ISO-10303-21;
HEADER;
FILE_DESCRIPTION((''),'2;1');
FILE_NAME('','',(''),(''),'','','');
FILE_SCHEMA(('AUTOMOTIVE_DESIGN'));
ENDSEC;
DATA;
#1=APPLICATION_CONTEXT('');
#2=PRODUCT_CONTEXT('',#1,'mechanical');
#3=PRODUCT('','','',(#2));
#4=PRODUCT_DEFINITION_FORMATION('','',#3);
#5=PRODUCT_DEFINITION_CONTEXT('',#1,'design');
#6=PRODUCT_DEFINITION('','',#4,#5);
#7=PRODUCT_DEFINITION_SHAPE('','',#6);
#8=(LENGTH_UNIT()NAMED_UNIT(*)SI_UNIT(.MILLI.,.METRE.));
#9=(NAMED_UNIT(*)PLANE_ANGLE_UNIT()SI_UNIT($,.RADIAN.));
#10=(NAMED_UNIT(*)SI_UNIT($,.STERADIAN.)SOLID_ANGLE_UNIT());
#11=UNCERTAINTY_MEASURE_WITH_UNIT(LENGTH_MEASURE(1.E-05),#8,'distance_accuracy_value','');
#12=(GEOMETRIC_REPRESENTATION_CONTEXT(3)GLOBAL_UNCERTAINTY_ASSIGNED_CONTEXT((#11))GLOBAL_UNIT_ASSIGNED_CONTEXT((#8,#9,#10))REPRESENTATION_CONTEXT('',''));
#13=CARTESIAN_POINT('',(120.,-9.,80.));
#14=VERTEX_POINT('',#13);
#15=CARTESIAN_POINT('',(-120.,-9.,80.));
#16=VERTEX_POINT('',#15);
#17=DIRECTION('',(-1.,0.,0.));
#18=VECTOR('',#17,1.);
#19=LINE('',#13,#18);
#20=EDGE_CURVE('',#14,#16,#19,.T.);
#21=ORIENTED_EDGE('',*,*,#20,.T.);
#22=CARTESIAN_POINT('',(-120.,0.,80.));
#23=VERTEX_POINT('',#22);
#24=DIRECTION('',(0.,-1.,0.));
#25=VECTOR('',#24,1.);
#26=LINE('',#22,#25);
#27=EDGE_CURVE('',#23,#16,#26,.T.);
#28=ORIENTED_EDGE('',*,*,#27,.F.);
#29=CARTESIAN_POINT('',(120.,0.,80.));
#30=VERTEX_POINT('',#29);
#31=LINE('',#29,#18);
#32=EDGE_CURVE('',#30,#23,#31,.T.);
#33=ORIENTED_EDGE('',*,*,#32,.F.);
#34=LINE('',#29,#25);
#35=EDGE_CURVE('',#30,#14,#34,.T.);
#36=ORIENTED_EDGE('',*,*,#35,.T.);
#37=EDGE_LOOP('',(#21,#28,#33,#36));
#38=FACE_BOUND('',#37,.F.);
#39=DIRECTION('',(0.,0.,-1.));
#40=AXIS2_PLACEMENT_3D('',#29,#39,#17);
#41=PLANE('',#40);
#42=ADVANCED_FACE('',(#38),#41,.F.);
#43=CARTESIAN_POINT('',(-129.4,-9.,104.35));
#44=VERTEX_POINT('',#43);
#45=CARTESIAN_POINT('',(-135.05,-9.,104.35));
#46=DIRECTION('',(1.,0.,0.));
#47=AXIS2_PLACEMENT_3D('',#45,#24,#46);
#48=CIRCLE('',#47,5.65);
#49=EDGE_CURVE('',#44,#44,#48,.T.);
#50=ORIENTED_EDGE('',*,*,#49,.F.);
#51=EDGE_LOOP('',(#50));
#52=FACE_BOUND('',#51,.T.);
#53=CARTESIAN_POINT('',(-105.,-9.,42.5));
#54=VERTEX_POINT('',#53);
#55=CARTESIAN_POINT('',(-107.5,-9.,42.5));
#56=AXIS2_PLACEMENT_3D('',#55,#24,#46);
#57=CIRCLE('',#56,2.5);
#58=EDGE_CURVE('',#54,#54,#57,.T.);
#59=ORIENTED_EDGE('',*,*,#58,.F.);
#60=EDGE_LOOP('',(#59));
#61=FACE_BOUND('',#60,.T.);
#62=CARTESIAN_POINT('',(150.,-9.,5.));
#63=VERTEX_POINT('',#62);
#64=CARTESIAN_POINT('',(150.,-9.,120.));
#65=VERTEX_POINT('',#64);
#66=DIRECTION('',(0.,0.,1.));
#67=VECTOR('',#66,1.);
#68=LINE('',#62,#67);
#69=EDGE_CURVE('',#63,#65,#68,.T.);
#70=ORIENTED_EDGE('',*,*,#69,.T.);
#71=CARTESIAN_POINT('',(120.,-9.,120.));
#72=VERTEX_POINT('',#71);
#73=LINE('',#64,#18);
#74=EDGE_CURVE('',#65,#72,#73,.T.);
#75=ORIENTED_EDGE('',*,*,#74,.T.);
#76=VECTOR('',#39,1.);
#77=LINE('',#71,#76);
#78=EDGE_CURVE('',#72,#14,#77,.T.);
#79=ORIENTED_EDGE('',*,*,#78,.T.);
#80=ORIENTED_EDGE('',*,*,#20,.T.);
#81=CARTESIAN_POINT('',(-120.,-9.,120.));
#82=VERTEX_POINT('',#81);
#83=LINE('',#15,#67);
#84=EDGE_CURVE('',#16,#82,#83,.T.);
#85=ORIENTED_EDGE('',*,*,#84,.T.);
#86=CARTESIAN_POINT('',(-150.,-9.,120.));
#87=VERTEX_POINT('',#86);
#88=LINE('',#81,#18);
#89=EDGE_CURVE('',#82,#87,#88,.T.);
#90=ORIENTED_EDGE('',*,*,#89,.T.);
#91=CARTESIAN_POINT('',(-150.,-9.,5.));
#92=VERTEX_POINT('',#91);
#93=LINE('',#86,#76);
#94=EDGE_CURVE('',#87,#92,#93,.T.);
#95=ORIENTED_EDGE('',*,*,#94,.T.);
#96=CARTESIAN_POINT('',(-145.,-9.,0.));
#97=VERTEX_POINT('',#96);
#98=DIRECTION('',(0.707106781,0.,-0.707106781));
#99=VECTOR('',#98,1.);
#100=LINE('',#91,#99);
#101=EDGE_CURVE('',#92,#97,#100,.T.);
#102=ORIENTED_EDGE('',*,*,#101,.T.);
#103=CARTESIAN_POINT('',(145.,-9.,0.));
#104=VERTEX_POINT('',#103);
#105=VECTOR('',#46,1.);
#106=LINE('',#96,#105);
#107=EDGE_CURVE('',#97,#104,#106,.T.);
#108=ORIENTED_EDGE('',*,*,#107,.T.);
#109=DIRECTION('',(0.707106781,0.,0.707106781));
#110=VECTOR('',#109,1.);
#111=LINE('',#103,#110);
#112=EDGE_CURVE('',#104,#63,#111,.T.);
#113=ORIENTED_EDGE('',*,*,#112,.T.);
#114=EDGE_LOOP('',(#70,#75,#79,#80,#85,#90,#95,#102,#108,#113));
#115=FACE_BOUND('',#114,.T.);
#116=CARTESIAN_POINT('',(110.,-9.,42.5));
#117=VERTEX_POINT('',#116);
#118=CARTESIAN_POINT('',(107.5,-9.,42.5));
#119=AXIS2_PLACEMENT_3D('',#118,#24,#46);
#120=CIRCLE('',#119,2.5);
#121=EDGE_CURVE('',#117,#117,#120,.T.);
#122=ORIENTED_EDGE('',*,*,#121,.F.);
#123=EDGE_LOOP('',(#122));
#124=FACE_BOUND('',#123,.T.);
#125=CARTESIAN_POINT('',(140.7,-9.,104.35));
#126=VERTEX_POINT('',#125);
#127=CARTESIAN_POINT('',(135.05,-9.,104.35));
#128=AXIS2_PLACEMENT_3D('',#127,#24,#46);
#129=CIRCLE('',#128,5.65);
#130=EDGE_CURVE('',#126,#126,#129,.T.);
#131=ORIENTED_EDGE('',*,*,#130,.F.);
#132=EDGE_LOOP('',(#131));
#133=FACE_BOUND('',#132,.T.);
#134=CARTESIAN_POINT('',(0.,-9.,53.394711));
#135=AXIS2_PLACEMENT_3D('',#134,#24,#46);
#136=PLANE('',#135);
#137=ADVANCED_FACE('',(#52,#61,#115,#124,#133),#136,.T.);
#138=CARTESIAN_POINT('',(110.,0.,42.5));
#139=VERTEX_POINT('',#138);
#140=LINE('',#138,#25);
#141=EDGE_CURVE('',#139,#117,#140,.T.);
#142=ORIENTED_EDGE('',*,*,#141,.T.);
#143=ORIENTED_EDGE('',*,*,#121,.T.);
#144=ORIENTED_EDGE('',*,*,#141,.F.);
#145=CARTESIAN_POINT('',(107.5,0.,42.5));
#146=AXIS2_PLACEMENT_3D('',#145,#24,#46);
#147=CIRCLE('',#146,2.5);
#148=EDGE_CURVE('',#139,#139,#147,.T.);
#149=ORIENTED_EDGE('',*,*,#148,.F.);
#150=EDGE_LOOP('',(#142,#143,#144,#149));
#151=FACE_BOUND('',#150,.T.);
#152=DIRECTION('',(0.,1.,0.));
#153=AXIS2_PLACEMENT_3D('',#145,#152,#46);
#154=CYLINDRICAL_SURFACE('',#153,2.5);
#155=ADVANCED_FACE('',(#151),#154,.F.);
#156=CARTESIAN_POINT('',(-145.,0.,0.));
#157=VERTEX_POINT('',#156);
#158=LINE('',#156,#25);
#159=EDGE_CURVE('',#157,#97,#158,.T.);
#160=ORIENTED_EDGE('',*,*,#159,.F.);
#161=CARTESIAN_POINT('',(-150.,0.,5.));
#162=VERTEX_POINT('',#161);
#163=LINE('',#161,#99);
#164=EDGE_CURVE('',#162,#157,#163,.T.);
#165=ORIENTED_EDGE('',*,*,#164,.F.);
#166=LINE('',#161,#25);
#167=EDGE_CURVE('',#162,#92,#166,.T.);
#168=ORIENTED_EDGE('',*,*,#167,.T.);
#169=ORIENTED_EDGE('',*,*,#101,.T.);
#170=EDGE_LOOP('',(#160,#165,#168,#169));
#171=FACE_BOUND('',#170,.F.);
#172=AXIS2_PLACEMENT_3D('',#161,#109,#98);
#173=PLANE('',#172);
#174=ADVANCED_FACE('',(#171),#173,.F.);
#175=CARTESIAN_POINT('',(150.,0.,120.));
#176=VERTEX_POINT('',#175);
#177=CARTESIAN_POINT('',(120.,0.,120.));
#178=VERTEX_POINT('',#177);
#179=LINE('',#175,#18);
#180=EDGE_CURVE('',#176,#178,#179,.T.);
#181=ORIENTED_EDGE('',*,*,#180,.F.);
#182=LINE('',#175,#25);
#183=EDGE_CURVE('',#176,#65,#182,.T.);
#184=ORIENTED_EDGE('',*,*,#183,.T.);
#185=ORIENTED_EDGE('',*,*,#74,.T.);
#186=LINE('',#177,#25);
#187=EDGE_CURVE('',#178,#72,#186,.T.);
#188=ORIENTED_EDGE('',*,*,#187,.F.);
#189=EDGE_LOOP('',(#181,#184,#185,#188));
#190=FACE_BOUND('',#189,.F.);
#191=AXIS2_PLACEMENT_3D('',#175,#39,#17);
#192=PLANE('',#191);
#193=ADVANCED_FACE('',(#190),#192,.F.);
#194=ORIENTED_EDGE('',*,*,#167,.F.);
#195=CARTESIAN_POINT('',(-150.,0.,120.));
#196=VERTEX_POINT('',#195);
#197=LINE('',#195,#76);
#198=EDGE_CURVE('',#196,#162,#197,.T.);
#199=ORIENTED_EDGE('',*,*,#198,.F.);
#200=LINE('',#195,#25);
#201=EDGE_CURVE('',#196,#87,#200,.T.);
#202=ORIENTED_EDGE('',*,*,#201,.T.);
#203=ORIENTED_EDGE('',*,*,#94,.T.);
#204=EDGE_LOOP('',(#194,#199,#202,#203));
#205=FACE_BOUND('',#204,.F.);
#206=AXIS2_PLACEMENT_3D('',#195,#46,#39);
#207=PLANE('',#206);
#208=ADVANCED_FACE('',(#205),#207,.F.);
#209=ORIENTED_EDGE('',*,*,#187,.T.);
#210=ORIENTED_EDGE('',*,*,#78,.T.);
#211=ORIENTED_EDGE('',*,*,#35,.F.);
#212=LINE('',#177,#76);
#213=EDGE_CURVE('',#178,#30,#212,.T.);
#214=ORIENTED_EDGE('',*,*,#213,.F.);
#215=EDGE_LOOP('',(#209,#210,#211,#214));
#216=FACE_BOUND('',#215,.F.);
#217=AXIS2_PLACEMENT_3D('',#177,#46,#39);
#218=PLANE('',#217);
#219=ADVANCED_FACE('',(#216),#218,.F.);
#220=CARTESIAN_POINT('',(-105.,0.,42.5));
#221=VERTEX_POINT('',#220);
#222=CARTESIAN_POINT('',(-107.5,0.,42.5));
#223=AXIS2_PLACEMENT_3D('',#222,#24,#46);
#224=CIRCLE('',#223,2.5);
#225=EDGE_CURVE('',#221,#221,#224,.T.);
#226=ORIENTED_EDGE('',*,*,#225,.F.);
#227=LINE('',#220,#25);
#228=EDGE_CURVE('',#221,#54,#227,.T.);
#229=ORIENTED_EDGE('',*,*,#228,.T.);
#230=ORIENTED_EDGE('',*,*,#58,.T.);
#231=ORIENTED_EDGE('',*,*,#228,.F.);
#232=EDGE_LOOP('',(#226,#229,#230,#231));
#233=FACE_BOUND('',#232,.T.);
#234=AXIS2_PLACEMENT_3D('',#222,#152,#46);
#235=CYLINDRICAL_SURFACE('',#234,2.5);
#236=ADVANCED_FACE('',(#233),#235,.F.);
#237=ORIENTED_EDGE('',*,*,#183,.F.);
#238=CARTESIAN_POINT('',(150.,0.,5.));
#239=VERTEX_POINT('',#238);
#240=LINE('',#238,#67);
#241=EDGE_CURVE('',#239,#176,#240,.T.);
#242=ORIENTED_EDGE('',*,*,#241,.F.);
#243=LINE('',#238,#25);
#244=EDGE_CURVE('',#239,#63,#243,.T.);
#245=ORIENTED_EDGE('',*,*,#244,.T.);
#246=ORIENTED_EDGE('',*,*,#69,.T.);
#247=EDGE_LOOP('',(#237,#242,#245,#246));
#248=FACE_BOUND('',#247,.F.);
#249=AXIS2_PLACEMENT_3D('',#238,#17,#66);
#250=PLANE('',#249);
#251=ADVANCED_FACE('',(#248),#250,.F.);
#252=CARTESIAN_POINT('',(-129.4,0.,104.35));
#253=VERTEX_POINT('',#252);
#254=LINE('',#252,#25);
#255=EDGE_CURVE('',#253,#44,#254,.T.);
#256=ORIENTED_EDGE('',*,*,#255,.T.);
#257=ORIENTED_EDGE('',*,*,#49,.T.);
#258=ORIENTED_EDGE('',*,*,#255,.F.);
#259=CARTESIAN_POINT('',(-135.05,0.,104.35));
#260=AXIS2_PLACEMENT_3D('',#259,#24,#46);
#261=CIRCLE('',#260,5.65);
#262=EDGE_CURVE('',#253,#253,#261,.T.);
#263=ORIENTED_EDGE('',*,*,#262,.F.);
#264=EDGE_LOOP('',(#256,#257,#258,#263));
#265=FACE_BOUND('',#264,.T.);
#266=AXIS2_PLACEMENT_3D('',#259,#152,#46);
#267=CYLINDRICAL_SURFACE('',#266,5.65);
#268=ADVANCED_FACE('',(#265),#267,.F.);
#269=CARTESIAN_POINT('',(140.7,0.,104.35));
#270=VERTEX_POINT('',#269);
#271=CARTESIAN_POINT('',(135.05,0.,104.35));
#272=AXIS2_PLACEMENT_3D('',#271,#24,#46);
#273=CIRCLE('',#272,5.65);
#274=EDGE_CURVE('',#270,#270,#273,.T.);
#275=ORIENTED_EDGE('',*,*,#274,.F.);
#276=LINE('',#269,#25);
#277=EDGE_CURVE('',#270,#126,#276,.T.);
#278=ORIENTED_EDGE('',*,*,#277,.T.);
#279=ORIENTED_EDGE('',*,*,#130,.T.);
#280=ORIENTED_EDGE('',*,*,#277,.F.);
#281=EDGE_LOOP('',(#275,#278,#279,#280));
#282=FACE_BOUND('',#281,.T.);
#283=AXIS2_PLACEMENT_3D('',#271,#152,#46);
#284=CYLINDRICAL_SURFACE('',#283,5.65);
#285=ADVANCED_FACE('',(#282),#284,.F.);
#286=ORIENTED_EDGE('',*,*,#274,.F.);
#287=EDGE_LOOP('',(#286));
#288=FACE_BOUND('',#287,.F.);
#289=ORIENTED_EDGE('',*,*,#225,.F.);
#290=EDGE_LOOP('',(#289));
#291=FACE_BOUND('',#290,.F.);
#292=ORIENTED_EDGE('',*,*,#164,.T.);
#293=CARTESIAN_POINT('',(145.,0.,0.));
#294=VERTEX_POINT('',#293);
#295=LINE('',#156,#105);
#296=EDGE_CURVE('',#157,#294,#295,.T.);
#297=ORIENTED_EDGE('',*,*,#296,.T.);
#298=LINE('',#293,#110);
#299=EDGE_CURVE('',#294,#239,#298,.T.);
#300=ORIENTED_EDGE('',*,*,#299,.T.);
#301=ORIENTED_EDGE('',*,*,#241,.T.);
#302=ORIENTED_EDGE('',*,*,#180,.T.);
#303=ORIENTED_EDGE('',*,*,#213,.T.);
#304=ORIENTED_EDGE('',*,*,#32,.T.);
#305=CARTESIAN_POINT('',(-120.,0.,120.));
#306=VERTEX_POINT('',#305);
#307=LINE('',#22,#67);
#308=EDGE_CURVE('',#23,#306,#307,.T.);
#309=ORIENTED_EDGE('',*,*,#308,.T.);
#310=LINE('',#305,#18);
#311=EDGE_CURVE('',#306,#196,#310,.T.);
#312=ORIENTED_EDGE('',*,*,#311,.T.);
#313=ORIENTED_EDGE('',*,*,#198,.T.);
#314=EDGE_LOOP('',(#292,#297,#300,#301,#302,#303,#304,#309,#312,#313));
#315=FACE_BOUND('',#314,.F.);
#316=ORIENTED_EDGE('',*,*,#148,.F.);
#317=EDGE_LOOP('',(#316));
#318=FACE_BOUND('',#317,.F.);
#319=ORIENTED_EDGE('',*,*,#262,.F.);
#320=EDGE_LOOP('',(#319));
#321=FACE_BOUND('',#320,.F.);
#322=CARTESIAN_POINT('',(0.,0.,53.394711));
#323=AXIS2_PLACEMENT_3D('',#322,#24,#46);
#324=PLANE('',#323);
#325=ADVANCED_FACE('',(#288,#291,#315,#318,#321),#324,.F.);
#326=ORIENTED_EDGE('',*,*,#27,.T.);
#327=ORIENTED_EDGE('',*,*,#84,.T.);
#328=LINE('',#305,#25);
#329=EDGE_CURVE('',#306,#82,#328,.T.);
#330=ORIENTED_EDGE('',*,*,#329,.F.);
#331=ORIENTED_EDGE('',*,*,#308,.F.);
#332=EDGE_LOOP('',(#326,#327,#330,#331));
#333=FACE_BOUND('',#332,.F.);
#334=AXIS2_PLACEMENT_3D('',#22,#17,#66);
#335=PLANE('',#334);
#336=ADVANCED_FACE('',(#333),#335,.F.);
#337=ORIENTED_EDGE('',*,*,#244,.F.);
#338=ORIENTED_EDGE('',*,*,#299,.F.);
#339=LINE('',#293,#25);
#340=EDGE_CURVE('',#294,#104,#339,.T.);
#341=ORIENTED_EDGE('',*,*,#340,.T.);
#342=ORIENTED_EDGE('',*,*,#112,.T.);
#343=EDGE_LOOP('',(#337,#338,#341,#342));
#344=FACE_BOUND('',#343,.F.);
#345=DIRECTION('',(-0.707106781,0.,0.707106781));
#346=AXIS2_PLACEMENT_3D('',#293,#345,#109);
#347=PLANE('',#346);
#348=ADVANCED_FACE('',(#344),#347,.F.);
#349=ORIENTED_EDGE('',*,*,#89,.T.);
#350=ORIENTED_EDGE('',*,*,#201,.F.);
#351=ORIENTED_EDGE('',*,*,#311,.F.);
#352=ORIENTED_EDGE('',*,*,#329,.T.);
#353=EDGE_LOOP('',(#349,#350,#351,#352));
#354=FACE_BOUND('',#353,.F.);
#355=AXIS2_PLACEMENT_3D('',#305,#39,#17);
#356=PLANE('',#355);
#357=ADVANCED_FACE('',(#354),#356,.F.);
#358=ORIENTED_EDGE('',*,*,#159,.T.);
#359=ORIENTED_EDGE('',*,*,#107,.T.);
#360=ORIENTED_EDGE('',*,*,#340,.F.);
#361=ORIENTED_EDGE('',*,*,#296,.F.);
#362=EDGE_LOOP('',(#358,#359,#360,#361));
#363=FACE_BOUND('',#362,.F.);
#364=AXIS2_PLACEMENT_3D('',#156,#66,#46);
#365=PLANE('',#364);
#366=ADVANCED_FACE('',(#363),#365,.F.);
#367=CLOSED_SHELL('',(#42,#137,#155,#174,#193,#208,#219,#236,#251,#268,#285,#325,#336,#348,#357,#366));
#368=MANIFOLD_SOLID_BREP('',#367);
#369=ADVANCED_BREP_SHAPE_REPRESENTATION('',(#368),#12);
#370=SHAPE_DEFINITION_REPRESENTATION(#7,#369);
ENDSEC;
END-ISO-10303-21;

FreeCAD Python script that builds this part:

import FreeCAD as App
import Part
import Sketcher

V = App.Vector

doc = App.newDocument("Part")
params = doc.addObject("Spreadsheet::Sheet", "Params")
for row, (alias, value) in enumerate([
    ("sketch1_diameter", "5 mm"),
    ("sketch1_diameter2", "11.3 mm"),
    ("sketch1_width", "30 mm"),
    ("sketch1_width2", "290 mm"),
    ("sketch1_width3", "240 mm"),
    ("pad1_length", "9 mm"),
], start=1):
    params.set(f"A{row}", alias)
    params.set(f"B{row}", "=" + value)
    params.setAlias(f"B{row}", alias)

body = doc.addObject("PartDesign::Body", "Body")

# Sketch on XZ plane
sketch1 = body.newObject("Sketcher::SketchObject", "Sketch")
sketch1.AttachmentSupport = (doc.getObject("XZ_Plane"), [""])
sketch1.MapMode = "FlatFace"
sketch1.addGeometry([
    Part.LineSegment(V(-120, 120, 0), V(-150, 120, 0)),  # 0
    Part.LineSegment(V(-150, 120, 0), V(-150, 5, 0)),  # 1
    Part.LineSegment(V(-150, 5, 0), V(-145, 0, 0)),  # 2
    Part.LineSegment(V(-145, 0, 0), V(145, 0, 0)),  # 3
    Part.LineSegment(V(145, 0, 0), V(150, 5, 0)),  # 4
    Part.LineSegment(V(150, 5, 0), V(150, 120, 0)),  # 5
    Part.LineSegment(V(150, 120, 0), V(120, 120, 0)),  # 6
    Part.LineSegment(V(120, 120, 0), V(120, 80, 0)),  # 7
    Part.LineSegment(V(120, 80, 0), V(-120, 80, 0)),  # 8
    Part.LineSegment(V(-120, 80, 0), V(-120, 120, 0)),  # 9
    Part.Circle(V(-107.5, 42.5, 0), V(0, 0, 1), 2.5),  # 10
    Part.Circle(V(107.5, 42.5, 0), V(0, 0, 1), 2.5),  # 11
    Part.Circle(V(-135.1, 104.3, 0), V(0, 0, 1), 5.7),  # 12
    Part.Circle(V(135.1, 104.3, 0), V(0, 0, 1), 5.7),  # 13
], False)
sketch1.addConstraint([
    Sketcher.Constraint("Coincident", 0, 2, 1, 1),
    Sketcher.Constraint("Coincident", 1, 2, 2, 1),
    Sketcher.Constraint("Coincident", 2, 2, 3, 1),
    Sketcher.Constraint("Coincident", 3, 2, 4, 1),
    Sketcher.Constraint("Coincident", 4, 2, 5, 1),
    Sketcher.Constraint("Coincident", 5, 2, 6, 1),
    Sketcher.Constraint("Coincident", 6, 2, 7, 1),
    Sketcher.Constraint("Coincident", 7, 2, 8, 1),
    Sketcher.Constraint("Coincident", 8, 2, 9, 1),
    Sketcher.Constraint("Coincident", 9, 2, 0, 1),
    Sketcher.Constraint("Horizontal", 0),
    Sketcher.Constraint("Vertical", 1),
    Sketcher.Constraint("Horizontal", 3),
    Sketcher.Constraint("Vertical", 5),
    Sketcher.Constraint("Horizontal", 6),
    Sketcher.Constraint("Vertical", 7),
    Sketcher.Constraint("Horizontal", 8),
    Sketcher.Constraint("Vertical", 9),
    Sketcher.Constraint("Equal", 10, 11),
    Sketcher.Constraint("Equal", 12, 13),
    Sketcher.Constraint("Symmetric", 2, 2, 3, 2, -1, 1),
    Sketcher.Constraint("Symmetric", 10, 3, 11, 3, -2),
    Sketcher.Constraint("Symmetric", 12, 3, 13, 3, -2),
    Sketcher.Constraint("Symmetric", 1, 2, 4, 2, -2),
    Sketcher.Constraint("Symmetric", 6, 2, 9, 2, -2),
    Sketcher.Constraint("Perpendicular", 2, 4),
    Sketcher.Constraint("Diameter", 10, 5.0),
    Sketcher.Constraint("Diameter", 12, 11.3),
    Sketcher.Constraint("DistanceX", 0, 2, 0, 1, 30.0),
    Sketcher.Constraint("DistanceX", 3, 1, 3, 2, 290.0),
    Sketcher.Constraint("DistanceX", 8, 2, 8, 1, 240.0),
    Sketcher.Constraint("DistanceY", 1, 2, 1, 1, 115.0),
    Sketcher.Constraint("DistanceY", 7, 2, 7, 1, 40.0),
    Sketcher.Constraint("DistanceX", 10, 3, 11, 3, 215.0),
    Sketcher.Constraint("DistanceY", -1, 1, 10, 3, 42.5),
    Sketcher.Constraint("DistanceX", 12, 3, 13, 3, 270.1),
    Sketcher.Constraint("DistanceY", -1, 1, 12, 3, 104.35),
])
sketch1.setExpression("Constraints[26]", "Params.sketch1_diameter")
sketch1.setExpression("Constraints[27]", "Params.sketch1_diameter2")
sketch1.setExpression("Constraints[28]", "Params.sketch1_width")
sketch1.setExpression("Constraints[29]", "Params.sketch1_width2")
sketch1.setExpression("Constraints[30]", "Params.sketch1_width3")
pad1 = body.newObject("PartDesign::Pad", "Pad")
pad1.Profile = sketch1
pad1.setExpression("Length", "Params.pad1_length")

doc.recompute()
